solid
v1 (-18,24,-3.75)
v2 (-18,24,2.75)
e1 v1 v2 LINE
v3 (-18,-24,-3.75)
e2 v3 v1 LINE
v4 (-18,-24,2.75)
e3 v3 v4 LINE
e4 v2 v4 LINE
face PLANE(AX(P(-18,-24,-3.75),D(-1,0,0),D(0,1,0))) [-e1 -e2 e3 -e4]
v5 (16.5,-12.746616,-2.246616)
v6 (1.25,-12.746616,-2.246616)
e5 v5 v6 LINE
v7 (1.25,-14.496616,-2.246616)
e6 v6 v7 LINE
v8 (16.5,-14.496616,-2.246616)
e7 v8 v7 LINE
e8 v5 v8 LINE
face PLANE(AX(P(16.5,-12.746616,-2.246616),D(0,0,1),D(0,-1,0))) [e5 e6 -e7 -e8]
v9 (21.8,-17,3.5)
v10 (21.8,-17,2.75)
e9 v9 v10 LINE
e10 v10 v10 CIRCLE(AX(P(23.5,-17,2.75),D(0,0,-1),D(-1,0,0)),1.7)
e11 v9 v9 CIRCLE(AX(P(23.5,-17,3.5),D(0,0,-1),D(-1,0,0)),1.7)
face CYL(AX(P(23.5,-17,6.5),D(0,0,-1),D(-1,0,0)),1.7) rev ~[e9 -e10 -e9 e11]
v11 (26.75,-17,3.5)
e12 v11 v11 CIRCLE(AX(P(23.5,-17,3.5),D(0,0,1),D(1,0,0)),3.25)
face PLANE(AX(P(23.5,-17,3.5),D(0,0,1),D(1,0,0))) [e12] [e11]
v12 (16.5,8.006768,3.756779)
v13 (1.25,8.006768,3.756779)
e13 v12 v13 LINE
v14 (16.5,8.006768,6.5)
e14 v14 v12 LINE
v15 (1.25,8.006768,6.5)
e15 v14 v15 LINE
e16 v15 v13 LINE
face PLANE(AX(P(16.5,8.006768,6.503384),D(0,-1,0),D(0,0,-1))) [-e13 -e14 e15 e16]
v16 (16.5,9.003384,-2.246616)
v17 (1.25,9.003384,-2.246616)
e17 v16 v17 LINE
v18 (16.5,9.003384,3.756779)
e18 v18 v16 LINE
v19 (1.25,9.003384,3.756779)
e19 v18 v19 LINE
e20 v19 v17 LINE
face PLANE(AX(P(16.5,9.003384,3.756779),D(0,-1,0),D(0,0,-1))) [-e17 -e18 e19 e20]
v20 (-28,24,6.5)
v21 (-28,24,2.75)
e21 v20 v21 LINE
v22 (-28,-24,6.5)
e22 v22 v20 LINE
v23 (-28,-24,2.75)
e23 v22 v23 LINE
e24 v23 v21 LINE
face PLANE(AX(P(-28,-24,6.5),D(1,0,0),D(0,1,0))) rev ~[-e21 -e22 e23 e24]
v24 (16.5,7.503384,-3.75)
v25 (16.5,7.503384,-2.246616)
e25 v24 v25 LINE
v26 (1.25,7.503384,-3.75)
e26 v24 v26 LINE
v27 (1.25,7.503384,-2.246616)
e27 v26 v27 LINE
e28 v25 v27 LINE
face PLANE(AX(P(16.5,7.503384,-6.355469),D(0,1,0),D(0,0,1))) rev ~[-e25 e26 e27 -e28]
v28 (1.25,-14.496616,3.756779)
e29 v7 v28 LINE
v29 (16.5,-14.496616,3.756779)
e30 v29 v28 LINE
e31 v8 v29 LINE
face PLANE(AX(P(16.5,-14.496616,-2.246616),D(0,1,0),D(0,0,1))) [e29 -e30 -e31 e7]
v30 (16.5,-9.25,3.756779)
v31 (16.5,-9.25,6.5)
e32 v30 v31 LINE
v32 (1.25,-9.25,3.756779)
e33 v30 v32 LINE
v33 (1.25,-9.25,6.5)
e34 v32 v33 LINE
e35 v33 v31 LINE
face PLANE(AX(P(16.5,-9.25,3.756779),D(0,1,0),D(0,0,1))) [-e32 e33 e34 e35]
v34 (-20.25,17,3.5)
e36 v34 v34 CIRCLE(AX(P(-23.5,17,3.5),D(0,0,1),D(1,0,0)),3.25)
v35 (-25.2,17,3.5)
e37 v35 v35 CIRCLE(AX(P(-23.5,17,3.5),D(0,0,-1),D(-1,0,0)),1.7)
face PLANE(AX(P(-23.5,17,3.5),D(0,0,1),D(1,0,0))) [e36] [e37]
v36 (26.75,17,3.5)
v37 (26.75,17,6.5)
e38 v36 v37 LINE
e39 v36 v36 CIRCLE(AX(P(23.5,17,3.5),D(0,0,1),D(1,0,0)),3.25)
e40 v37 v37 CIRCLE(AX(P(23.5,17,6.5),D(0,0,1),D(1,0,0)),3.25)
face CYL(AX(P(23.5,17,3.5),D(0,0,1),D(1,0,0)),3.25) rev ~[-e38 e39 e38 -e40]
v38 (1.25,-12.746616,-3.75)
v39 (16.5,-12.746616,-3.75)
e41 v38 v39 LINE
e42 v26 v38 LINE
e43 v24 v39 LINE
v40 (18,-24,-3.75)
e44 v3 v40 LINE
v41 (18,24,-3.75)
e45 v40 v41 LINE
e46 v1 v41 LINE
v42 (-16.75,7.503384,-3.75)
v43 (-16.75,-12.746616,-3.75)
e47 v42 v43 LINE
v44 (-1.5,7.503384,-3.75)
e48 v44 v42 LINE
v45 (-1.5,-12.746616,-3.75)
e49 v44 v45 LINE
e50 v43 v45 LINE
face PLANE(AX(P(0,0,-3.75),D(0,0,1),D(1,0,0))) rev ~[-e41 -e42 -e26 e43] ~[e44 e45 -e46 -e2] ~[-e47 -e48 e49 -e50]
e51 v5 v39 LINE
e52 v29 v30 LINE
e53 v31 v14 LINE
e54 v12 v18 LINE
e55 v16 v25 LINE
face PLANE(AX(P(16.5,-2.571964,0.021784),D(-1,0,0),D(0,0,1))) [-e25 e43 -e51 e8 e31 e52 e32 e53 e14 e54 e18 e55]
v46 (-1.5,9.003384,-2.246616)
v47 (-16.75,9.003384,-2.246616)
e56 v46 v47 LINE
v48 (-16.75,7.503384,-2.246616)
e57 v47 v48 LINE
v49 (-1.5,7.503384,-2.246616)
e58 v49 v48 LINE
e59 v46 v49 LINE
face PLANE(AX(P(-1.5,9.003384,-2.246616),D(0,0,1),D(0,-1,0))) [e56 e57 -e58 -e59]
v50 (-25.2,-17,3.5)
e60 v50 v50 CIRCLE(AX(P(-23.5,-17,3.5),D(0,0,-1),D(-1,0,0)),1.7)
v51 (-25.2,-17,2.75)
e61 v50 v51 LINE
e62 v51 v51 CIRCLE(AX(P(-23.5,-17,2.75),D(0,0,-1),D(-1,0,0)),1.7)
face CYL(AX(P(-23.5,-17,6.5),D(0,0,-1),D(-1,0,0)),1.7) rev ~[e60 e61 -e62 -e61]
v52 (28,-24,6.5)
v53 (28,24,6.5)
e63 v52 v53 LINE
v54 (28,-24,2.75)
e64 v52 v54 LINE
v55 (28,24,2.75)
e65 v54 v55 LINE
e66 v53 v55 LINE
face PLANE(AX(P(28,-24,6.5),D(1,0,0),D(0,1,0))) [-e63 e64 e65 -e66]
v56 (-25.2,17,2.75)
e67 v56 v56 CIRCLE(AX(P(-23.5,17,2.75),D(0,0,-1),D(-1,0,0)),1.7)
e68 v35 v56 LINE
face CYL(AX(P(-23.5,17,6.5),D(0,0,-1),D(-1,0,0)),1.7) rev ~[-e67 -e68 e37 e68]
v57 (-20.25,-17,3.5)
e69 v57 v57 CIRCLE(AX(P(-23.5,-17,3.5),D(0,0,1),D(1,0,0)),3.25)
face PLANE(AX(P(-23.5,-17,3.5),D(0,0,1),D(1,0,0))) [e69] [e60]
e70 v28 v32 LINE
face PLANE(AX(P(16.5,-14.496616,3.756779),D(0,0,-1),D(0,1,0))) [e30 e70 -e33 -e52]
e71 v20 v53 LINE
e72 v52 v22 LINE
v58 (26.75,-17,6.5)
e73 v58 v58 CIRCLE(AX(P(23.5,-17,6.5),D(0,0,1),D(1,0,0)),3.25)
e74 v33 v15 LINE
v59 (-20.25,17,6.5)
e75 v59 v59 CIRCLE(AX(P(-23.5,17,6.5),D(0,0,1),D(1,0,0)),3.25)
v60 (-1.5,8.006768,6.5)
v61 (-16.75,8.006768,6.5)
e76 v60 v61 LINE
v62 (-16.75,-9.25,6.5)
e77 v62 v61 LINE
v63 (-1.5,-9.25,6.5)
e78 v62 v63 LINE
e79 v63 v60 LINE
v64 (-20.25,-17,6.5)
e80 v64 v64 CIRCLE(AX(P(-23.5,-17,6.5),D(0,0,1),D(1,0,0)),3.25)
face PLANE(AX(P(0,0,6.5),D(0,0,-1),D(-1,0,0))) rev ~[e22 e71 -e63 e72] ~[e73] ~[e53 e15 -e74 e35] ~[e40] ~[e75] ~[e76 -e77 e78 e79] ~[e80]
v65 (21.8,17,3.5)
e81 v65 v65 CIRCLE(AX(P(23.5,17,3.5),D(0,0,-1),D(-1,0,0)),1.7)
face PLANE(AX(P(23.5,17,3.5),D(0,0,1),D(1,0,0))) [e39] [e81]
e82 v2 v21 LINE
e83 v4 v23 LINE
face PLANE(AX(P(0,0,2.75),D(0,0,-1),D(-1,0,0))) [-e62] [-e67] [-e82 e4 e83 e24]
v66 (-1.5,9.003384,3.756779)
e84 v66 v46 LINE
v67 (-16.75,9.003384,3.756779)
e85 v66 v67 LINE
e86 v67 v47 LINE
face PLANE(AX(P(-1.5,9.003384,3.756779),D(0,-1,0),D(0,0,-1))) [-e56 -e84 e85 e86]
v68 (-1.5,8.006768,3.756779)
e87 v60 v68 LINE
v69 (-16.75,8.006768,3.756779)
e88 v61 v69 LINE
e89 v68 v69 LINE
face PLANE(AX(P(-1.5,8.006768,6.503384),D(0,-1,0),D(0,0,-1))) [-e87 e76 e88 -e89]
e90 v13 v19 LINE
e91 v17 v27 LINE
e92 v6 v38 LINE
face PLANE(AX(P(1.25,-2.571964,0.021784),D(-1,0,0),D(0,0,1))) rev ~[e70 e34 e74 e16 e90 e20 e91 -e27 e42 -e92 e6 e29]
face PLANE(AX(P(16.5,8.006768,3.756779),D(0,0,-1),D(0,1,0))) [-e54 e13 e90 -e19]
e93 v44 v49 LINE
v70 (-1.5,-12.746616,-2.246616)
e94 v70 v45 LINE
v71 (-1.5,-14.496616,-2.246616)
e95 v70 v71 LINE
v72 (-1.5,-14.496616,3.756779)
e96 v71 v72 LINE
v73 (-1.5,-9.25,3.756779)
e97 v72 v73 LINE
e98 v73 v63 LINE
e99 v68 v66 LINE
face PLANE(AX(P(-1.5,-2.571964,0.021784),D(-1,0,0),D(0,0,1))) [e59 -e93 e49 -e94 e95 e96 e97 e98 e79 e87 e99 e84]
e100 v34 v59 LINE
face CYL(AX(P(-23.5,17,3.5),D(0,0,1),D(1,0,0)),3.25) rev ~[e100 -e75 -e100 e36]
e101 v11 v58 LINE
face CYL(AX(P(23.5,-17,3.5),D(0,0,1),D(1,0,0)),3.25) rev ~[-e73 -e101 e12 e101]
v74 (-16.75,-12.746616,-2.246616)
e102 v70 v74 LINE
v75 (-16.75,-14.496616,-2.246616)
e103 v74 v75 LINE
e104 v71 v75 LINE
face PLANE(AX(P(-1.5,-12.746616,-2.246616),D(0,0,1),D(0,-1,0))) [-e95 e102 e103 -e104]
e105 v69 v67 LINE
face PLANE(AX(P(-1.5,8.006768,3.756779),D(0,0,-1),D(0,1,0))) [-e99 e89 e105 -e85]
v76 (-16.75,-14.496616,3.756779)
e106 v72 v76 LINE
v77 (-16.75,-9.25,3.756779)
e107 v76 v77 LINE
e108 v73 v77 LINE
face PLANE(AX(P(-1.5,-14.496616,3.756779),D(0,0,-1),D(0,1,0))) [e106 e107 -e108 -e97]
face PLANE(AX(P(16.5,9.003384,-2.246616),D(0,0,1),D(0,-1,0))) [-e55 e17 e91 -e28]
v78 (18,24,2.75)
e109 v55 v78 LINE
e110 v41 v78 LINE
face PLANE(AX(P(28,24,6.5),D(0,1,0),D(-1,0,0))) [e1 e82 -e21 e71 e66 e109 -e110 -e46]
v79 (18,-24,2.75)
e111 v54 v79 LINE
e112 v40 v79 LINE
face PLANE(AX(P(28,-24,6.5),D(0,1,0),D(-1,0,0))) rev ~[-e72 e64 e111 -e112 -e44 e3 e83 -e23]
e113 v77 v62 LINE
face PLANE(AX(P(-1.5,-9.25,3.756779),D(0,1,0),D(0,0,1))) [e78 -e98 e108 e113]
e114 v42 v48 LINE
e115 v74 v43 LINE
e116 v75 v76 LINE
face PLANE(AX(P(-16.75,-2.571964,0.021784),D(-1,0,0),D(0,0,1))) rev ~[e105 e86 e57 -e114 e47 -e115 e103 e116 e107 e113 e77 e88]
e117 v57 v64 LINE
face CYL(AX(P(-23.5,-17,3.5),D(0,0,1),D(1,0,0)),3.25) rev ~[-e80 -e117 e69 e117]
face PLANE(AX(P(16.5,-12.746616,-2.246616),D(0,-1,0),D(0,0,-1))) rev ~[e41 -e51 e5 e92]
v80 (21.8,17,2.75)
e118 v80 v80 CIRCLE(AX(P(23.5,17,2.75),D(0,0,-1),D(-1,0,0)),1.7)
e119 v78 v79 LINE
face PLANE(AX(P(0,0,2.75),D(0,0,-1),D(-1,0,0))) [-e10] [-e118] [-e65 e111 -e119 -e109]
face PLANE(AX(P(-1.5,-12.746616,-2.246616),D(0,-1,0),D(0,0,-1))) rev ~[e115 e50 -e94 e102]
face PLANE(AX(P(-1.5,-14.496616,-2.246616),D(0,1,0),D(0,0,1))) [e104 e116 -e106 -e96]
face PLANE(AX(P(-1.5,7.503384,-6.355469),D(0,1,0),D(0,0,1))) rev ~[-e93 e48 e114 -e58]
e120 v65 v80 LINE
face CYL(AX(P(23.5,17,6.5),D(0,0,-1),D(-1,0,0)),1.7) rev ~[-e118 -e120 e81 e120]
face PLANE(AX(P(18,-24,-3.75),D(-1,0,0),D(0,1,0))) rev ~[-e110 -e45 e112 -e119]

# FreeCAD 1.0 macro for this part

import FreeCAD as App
import Part
import Sketcher
from FreeCAD import Vector


def add_polygon(sketch, points):
    """Adds a closed chain of lines whose ends are joined by coincident constraints."""
    first, n = sketch.GeometryCount, len(points)
    for a, b in zip(points, points[1:] + points[:1]):
        sketch.addGeometry(Part.LineSegment(App.Vector(*a, 0), App.Vector(*b, 0)), False)
    for i in range(n):
        sketch.addConstraint(Sketcher.Constraint("Coincident", first + i, 2, first + (i + 1) % n, 1))

doc = App.newDocument("Part")
body = doc.addObject("PartDesign::Body", "Body")

# Sketch on XY plane
sketch1 = doc.addObject("Sketcher::SketchObject", "Sketch")
body.addObject(sketch1)
sketch1.AttachmentSupport = (doc.XY_Plane, [""])
sketch1.MapMode = "FlatFace"
add_polygon(sketch1, [(-18, 24), (-18, -24), (18, -24), (18, 24)])  # lines 0-3
sketch1.addConstraint([
    Sketcher.Constraint("Vertical", 0),
    Sketcher.Constraint("Horizontal", 1),
    Sketcher.Constraint("Vertical", 2),
    Sketcher.Constraint("Horizontal", 3),
    Sketcher.Constraint("Symmetric", 0, 2, 2, 2, -1, 1),
    Sketcher.Constraint("DistanceX", 1, 1, 1, 2, 36.0),
    Sketcher.Constraint("DistanceY", 0, 2, 0, 1, 48.0),
])
pad1 = doc.addObject("PartDesign::Pad", "Pad")
body.addObject(pad1)
pad1.Profile = sketch1
pad1.Type = "TwoLengths"
pad1.Length = 6.5
pad1.Length2 = 3.75

# Sketch on XY plane
sketch2 = doc.addObject("Sketcher::SketchObject", "Sketch001")
body.addObject(sketch2)
sketch2.AttachmentSupport = (doc.XY_Plane, [""])
sketch2.MapMode = "FlatFace"
sketch2.AttachmentOffset = App.Placement(Vector(0, 0, 6.5), App.Rotation())
add_polygon(sketch2, [(28, 24), (28, -24), (-28, -24), (-28, 24)])  # lines 0-3
sketch2.addConstraint([
    Sketcher.Constraint("Vertical", 0),
    Sketcher.Constraint("Horizontal", 1),
    Sketcher.Constraint("Vertical", 2),
    Sketcher.Constraint("Horizontal", 3),
    Sketcher.Constraint("Symmetric", 0, 2, 2, 2, -1, 1),
    Sketcher.Constraint("DistanceX", 1, 2, 1, 1, 56.0),
    Sketcher.Constraint("DistanceY", 0, 2, 0, 1, 48.0),
])
pad2 = doc.addObject("PartDesign::Pad", "Pad001")
body.addObject(pad2)
pad2.Profile = sketch2
pad2.Length = 3.75
pad2.Reversed = True

# Sketch on XY plane
sketch3 = doc.addObject("Sketcher::SketchObject", "Sketch002")
body.addObject(sketch3)
sketch3.AttachmentSupport = (doc.XY_Plane, [""])
sketch3.MapMode = "FlatFace"
sketch3.AttachmentOffset = App.Placement(Vector(0, 0, 6.5), App.Rotation())
sketch3.addGeometry([
    Part.Circle(Vector(-23.5, 17, 0), Vector(0, 0, 1), 1.7),
    Part.Circle(Vector(-23.5, -17, 0), Vector(0, 0, 1), 1.7),
    Part.Circle(Vector(23.5, 17, 0), Vector(0, 0, 1), 1.7),
    Part.Circle(Vector(23.5, -17, 0), Vector(0, 0, 1), 1.7),
], False)
sketch3.addConstraint([
    Sketcher.Constraint("Equal", 0, 1),
    Sketcher.Constraint("Equal", 1, 2),
    Sketcher.Constraint("Equal", 2, 3),
    Sketcher.Constraint("Symmetric", 1, 3, 2, 3, -1, 1),
    Sketcher.Constraint("Symmetric", 0, 3, 3, 3, -1, 1),
    Sketcher.Constraint("Symmetric", 0, 3, 2, 3, -2),
    Sketcher.Constraint("Diameter", 0, 3.4),
    Sketcher.Constraint("DistanceY", -1, 1, 0, 3, 17.0),
    Sketcher.Constraint("DistanceX", 0, 3, 2, 3, 47.0),
])
doc.recompute()
hole = doc.addObject("PartDesign::Hole", "Hole")
body.addObject(hole)
hole.Profile = sketch3
hole.ThreadType = "None"
hole.Diameter = 3.4
hole.DepthType = "Dimension"
hole.Depth = 10.1
hole.DrillPoint = "Angled"
hole.DrillPointAngle = 118
hole.HoleCutType = "Counterbore"
hole.HoleCutDiameter = 6.5
hole.HoleCutDepth = 3

# Sketch on YZ plane
sketch4 = doc.addObject("Sketcher::SketchObject", "Sketch003")
body.addObject(sketch4)
sketch4.AttachmentSupport = (doc.YZ_Plane, [""])
sketch4.MapMode = "FlatFace"
sketch4.AttachmentOffset = App.Placement(Vector(0, 0, 16.5), App.Rotation())
add_polygon(sketch4, [(8, 3.8), (8, 6.5), (-9.2, 6.5), (-9.2, 3.8), (-14.5, 3.8), (-14.5, -2.2), (-12.7, -2.2), (-12.7, -6.4), (7.5, -6.4), (7.5, -2.2), (9, -2.2), (9, 3.8)])  # lines 0-11
sketch4.addConstraint([
    Sketcher.Constraint("Vertical", 0),
    Sketcher.Constraint("Horizontal", 1),
    Sketcher.Constraint("Vertical", 2),
    Sketcher.Constraint("Horizontal", 3),
    Sketcher.Constraint("Vertical", 4),
    Sketcher.Constraint("Horizontal", 5),
    Sketcher.Constraint("Vertical", 6),
    Sketcher.Constraint("Horizontal", 7),
    Sketcher.Constraint("Vertical", 8),
    Sketcher.Constraint("Horizontal", 9),
    Sketcher.Constraint("Vertical", 10),
    Sketcher.Constraint("Horizontal", 11),
    Sketcher.Constraint("Horizontal", 5, 2, 8, 2),
    Sketcher.Constraint("Horizontal", 3, 2, 10, 2),
    Sketcher.Constraint("DistanceX", 9, 1, 9, 2, 1.5),
    Sketcher.Constraint("DistanceX", 5, 1, 5, 2, 1.75),
    Sketcher.Constraint("DistanceX", 7, 1, 7, 2, 20.25),
    Sketcher.Constraint("DistanceX", 1, 2, -1, 1, 9.25),
    Sketcher.Constraint("DistanceY", 4, 2, 1, 2, 8.75),
    Sketcher.Constraint("DistanceX", 1, 2, 1, 1, 17.256768),
    Sketcher.Constraint("DistanceX", 3, 2, 3, 1, 5.246616),
    Sketcher.Constraint("DistanceY", 0, 1, 0, 2, 2.746605),
    Sketcher.Constraint("DistanceY", 6, 2, 6, 1, 4.108853),
    Sketcher.Constraint("DistanceY", -1, 1, 2, 2, 3.756779),
])
pocket1 = doc.addObject("PartDesign::Pocket", "Pocket")
body.addObject(pocket1)
pocket1.Profile = sketch4
pocket1.Length = 15.25
doc.recompute()

linearpattern = doc.addObject("PartDesign::LinearPattern", "LinearPattern")
body.addObject(linearpattern)
linearpattern.Originals = [pocket1]
linearpattern.Direction = (doc.X_Axis, [""])
linearpattern.Mode = "offset"
linearpattern.Offset = 18
linearpattern.Occurrences = 2
linearpattern.Reversed = True
body.Tip = linearpattern

doc.recompute()
